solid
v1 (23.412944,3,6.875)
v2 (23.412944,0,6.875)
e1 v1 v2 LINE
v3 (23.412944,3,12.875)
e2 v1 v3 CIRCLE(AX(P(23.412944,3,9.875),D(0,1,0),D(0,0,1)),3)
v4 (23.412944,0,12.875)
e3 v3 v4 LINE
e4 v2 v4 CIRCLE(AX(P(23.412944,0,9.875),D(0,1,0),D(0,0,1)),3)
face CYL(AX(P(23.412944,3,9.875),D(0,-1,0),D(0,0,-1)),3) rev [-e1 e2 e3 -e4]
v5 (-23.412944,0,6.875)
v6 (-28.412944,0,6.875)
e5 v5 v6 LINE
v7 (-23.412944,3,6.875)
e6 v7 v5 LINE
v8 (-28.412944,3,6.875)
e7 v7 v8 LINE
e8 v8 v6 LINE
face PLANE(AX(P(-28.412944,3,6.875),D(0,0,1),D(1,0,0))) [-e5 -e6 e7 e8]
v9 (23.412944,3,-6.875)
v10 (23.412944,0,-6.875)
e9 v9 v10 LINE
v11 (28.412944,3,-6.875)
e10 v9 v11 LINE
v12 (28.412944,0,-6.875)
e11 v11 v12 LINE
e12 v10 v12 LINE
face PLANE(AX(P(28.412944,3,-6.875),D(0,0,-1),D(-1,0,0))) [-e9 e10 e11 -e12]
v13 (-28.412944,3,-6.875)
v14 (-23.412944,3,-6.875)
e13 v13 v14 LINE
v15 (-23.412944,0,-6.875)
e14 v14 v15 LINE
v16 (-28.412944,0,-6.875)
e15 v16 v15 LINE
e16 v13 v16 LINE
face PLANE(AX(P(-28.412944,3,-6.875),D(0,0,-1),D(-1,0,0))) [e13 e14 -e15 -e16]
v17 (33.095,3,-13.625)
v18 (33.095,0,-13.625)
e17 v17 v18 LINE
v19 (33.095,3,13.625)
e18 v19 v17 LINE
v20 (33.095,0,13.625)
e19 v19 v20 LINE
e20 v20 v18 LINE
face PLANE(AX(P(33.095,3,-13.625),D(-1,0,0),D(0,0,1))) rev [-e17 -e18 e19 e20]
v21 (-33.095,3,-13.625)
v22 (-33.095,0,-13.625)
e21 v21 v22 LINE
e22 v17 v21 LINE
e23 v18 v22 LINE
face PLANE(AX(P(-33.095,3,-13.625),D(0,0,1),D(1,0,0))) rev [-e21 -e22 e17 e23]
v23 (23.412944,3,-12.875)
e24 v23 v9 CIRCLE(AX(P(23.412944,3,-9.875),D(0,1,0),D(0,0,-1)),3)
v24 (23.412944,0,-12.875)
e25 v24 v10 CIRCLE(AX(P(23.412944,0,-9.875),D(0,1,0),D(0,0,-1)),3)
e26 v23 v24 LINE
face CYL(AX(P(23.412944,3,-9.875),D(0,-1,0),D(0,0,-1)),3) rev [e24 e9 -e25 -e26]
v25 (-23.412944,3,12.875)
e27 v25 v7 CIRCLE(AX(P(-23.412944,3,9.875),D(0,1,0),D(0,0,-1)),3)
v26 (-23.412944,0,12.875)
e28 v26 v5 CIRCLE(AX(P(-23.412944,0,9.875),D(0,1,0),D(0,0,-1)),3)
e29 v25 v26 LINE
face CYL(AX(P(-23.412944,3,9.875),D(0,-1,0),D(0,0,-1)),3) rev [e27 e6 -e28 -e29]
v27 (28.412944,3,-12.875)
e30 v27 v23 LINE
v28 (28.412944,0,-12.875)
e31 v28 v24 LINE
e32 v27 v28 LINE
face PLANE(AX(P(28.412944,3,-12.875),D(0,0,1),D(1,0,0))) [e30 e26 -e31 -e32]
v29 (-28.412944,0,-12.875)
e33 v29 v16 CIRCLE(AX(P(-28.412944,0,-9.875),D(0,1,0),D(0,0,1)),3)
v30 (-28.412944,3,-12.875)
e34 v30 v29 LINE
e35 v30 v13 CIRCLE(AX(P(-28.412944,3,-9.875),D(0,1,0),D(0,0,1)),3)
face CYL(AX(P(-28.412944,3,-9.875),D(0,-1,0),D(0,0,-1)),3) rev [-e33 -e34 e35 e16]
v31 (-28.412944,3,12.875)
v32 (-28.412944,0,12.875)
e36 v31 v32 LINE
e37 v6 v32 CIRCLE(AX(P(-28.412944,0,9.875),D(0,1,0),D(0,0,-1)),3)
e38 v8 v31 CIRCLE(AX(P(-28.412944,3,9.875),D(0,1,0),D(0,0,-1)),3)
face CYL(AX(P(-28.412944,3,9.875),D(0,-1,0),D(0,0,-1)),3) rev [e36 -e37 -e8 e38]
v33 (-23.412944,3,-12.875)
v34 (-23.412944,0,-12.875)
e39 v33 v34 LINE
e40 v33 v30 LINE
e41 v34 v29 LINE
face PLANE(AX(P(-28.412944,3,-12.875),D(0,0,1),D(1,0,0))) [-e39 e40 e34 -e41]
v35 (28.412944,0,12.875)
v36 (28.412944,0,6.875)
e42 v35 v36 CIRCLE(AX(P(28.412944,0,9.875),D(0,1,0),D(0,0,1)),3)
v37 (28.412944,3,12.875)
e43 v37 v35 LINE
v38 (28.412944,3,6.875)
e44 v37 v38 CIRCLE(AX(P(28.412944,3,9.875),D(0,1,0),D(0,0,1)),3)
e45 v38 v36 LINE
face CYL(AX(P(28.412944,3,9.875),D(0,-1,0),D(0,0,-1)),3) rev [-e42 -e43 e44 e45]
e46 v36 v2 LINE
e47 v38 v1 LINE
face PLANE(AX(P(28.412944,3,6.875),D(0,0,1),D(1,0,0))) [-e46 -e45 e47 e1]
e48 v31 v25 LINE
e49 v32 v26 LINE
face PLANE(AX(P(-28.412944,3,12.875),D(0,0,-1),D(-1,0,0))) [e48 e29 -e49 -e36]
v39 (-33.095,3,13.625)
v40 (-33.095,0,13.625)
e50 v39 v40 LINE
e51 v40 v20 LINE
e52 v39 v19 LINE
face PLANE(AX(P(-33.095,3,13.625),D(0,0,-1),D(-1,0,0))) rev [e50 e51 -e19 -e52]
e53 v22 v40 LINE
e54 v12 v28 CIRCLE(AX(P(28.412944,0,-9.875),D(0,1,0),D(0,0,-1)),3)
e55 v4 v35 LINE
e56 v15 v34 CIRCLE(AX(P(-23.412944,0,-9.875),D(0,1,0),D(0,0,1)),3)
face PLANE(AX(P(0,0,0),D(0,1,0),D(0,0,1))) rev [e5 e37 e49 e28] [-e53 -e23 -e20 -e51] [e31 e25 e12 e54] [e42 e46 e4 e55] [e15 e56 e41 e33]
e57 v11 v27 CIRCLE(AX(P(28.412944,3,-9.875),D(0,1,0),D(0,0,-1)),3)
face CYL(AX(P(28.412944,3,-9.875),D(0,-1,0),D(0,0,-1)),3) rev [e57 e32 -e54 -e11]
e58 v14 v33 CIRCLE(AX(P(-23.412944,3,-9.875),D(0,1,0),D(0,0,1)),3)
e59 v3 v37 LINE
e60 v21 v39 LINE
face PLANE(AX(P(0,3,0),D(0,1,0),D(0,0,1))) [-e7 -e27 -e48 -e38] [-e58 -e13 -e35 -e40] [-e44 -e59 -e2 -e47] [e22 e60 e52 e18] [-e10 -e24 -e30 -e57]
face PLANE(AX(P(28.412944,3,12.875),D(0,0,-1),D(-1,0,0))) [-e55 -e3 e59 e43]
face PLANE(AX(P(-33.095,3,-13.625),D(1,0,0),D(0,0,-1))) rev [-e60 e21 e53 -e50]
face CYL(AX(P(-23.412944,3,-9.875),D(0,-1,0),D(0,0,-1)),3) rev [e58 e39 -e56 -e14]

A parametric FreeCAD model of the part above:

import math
import FreeCAD as App
import Part
import Sketcher
Q = App.Units.Quantity

doc = App.newDocument("Part")
body = doc.addObject("PartDesign::Body", "Body")

sketch1 = body.newObject("Sketcher::SketchObject", "Sketch")
sketch1.AttachmentSupport = (doc.getObject("XZ_Plane"), [""])
sketch1.MapMode = "FlatFace"
sketch1.addGeometry(Part.LineSegment(App.Vector(-33.1, -13.6, 0), App.Vector(-33.1, 13.6, 0)), False)
sketch1.addGeometry(Part.LineSegment(App.Vector(-33.1, 13.6, 0), App.Vector(33.1, 13.6, 0)), False)
sketch1.addGeometry(Part.LineSegment(App.Vector(33.1, 13.6, 0), App.Vector(33.1, -13.6, 0)), False)
sketch1.addGeometry(Part.LineSegment(App.Vector(33.1, -13.6, 0), App.Vector(-33.1, -13.6, 0)), False)
sketch1.addGeometry(Part.LineSegment(App.Vector(-23.4, 12.9, 0), App.Vector(-28.4, 12.9, 0)), False)
sketch1.addGeometry(Part.ArcOfCircle(Part.Circle(App.Vector(-28.4, 9.9, 0), App.Vector(0, 0, 1), 3), math.radians(90), math.radians(270)), False)
sketch1.addGeometry(Part.LineSegment(App.Vector(-28.4, 6.9, 0), App.Vector(-23.4, 6.9, 0)), False)
sketch1.addGeometry(Part.ArcOfCircle(Part.Circle(App.Vector(-23.4, 9.9, 0), App.Vector(0, 0, 1), 3), math.radians(-90), math.radians(90)), False)
sketch1.addGeometry(Part.ArcOfCircle(Part.Circle(App.Vector(28.4, 9.9, 0), App.Vector(0, 0, 1), 3), math.radians(-90), math.radians(90)), False)
sketch1.addGeometry(Part.LineSegment(App.Vector(28.4, 12.9, 0), App.Vector(23.4, 12.9, 0)), False)
sketch1.addGeometry(Part.ArcOfCircle(Part.Circle(App.Vector(23.4, 9.9, 0), App.Vector(0, 0, 1), 3), math.radians(90), math.radians(270)), False)
sketch1.addGeometry(Part.LineSegment(App.Vector(23.4, 6.9, 0), App.Vector(28.4, 6.9, 0)), False)
sketch1.addGeometry(Part.ArcOfCircle(Part.Circle(App.Vector(-28.4, -9.9, 0), App.Vector(0, 0, 1), 3), math.radians(90), math.radians(270)), False)
sketch1.addGeometry(Part.LineSegment(App.Vector(-28.4, -12.9, 0), App.Vector(-23.4, -12.9, 0)), False)
sketch1.addGeometry(Part.ArcOfCircle(Part.Circle(App.Vector(-23.4, -9.9, 0), App.Vector(0, 0, 1), 3), math.radians(-90), math.radians(90)), False)
sketch1.addGeometry(Part.LineSegment(App.Vector(-23.4, -6.9, 0), App.Vector(-28.4, -6.9, 0)), False)
sketch1.addGeometry(Part.LineSegment(App.Vector(23.4, -12.9, 0), App.Vector(28.4, -12.9, 0)), False)
sketch1.addGeometry(Part.ArcOfCircle(Part.Circle(App.Vector(28.4, -9.9, 0), App.Vector(0, 0, 1), 3), math.radians(-90), math.radians(90)), False)
sketch1.addGeometry(Part.LineSegment(App.Vector(28.4, -6.9, 0), App.Vector(23.4, -6.9, 0)), False)
sketch1.addGeometry(Part.ArcOfCircle(Part.Circle(App.Vector(23.4, -9.9, 0), App.Vector(0, 0, 1), 3), math.radians(90), math.radians(270)), False)
sketch1.addConstraint(Sketcher.Constraint("Coincident", 0, 2, 1, 1))
sketch1.addConstraint(Sketcher.Constraint("Coincident", 1, 2, 2, 1))
sketch1.addConstraint(Sketcher.Constraint("Coincident", 2, 2, 3, 1))
sketch1.addConstraint(Sketcher.Constraint("Coincident", 3, 2, 0, 1))
sketch1.addConstraint(Sketcher.Constraint("Tangent", 4, 2, 5, 1))
sketch1.addConstraint(Sketcher.Constraint("Tangent", 5, 2, 6, 1))
sketch1.addConstraint(Sketcher.Constraint("Tangent", 6, 2, 7, 1))
sketch1.addConstraint(Sketcher.Constraint("Tangent", 7, 2, 4, 1))
sketch1.addConstraint(Sketcher.Constraint("Tangent", 8, 2, 9, 1))
sketch1.addConstraint(Sketcher.Constraint("Tangent", 9, 2, 10, 1))
sketch1.addConstraint(Sketcher.Constraint("Tangent", 10, 2, 11, 1))
sketch1.addConstraint(Sketcher.Constraint("Tangent", 11, 2, 8, 1))
sketch1.addConstraint(Sketcher.Constraint("Tangent", 12, 2, 13, 1))
sketch1.addConstraint(Sketcher.Constraint("Tangent", 13, 2, 14, 1))
sketch1.addConstraint(Sketcher.Constraint("Tangent", 14, 2, 15, 1))
sketch1.addConstraint(Sketcher.Constraint("Tangent", 15, 2, 12, 1))
sketch1.addConstraint(Sketcher.Constraint("Tangent", 16, 2, 17, 1))
sketch1.addConstraint(Sketcher.Constraint("Tangent", 17, 2, 18, 1))
sketch1.addConstraint(Sketcher.Constraint("Tangent", 18, 2, 19, 1))
sketch1.addConstraint(Sketcher.Constraint("Tangent", 19, 2, 16, 1))
sketch1.addConstraint(Sketcher.Constraint("Vertical", 0))
sketch1.addConstraint(Sketcher.Constraint("Horizontal", 1))
sketch1.addConstraint(Sketcher.Constraint("Vertical", 2))
sketch1.addConstraint(Sketcher.Constraint("Horizontal", 3))
sketch1.addConstraint(Sketcher.Constraint("Horizontal", 4))
sketch1.addConstraint(Sketcher.Constraint("Horizontal", 6))
sketch1.addConstraint(Sketcher.Constraint("Horizontal", 9))
sketch1.addConstraint(Sketcher.Constraint("Horizontal", 11))
sketch1.addConstraint(Sketcher.Constraint("Horizontal", 13))
sketch1.addConstraint(Sketcher.Constraint("Horizontal", 15))
sketch1.addConstraint(Sketcher.Constraint("Horizontal", 16))
sketch1.addConstraint(Sketcher.Constraint("Horizontal", 18))
sketch1.addConstraint(Sketcher.Constraint("Equal", 7, 8))
sketch1.addConstraint(Sketcher.Constraint("Equal", 10, 12))
sketch1.addConstraint(Sketcher.Constraint("Equal", 14, 17))
sketch1.addConstraint(Sketcher.Constraint("Symmetric", 8, 3, 12, 3, -1, 1))
sketch1.addConstraint(Sketcher.Constraint("Symmetric", 5, 3, 17, 3, -1, 1))
sketch1.addConstraint(Sketcher.Constraint("Symmetric", 0, 2, 2, 2, -1, 1))
sketch1.addConstraint(Sketcher.Constraint("Symmetric", 5, 3, 8, 3, -2))
sketch1.addConstraint(Sketcher.Constraint("Vertical", 7, 3, 14, 3))
sketch1.addConstraint(Sketcher.Constraint("Vertical", 10, 3, 19, 3))
sketch1.addConstraint(Sketcher.Constraint("Equal", 6, 9))
sketch1.addConstraint(Sketcher.Constraint("Radius", 5, Q("3 mm")))
sketch1.addConstraint(Sketcher.Constraint("DistanceX", 4, 2, 4, 1, Q("5 mm")))
sketch1.addConstraint(Sketcher.Constraint("DistanceX", 1, 1, 1, 2, Q("66.19 mm")))
sketch1.addConstraint(Sketcher.Constraint("DistanceY", 0, 1, 0, 2, Q("27.25 mm")))
sketch1.addConstraint(Sketcher.Constraint("DistanceY", 12, 3, 0, 2, Q("23.5 mm")))
sketch1.addConstraint(Sketcher.Constraint("DistanceX", 7, 3, 8, 3, Q("51.825889 mm")))
pad1 = body.newObject("PartDesign::Pad", "Pad")
pad1.Profile = sketch1
pad1.Length = 3
pad1.Reversed = True

doc.recompute()
